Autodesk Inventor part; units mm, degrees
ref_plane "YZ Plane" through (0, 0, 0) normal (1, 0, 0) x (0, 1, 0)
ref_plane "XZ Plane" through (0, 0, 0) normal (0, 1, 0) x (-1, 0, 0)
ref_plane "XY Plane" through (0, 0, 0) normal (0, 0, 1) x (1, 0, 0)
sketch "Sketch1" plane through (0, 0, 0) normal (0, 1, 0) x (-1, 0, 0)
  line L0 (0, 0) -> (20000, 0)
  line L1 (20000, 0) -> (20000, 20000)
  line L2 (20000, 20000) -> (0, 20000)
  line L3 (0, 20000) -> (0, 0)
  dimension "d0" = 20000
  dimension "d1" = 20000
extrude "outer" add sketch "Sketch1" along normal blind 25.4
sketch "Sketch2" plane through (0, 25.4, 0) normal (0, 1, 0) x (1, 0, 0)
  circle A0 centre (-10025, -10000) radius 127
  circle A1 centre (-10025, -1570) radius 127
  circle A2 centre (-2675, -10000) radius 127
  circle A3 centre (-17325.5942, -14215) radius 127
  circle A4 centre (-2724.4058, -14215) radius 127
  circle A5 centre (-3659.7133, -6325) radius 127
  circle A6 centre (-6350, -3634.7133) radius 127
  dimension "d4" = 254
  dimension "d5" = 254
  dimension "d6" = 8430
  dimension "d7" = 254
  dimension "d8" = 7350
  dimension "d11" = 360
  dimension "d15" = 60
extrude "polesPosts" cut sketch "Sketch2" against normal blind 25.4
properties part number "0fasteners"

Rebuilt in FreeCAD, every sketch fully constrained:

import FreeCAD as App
import Part
import Sketcher
from FreeCAD import Vector
Q = App.Units.Quantity


def add_polygon(sketch, points):
    """Adds a closed chain of lines whose ends are joined by coincident constraints."""
    first, n = sketch.GeometryCount, len(points)
    for a, b in zip(points, points[1:] + points[:1]):
        sketch.addGeometry(Part.LineSegment(App.Vector(*a, 0), App.Vector(*b, 0)), False)
    for i in range(n):
        sketch.addConstraint(Sketcher.Constraint("Coincident", first + i, 2, first + (i + 1) % n, 1))

doc = App.newDocument("Part")
body = doc.addObject("PartDesign::Body", "Body")

sketch1 = body.newObject("Sketcher::SketchObject", "Sketch")
sketch1.AttachmentSupport = (doc.getObject("XZ_Plane"), [""])
sketch1.MapMode = "FlatFace"
add_polygon(sketch1, [(0, 20000), (0, 0), (-20000, 0), (-20000, 20000)])
sketch1.addConstraint([
    Sketcher.Constraint("Vertical", 0),
    Sketcher.Constraint("Horizontal", 1),
    Sketcher.Constraint("Vertical", 2),
    Sketcher.Constraint("Horizontal", 3),
    Sketcher.Constraint("Coincident", 0, 2, -1, 1),
    Sketcher.Constraint("Equal", 3, 0),
    Sketcher.Constraint("DistanceX", 1, 2, 1, 1, Q("20000 mm")),
])
pad1 = body.newObject("PartDesign::Pad", "Pad")
pad1.Profile = sketch1
pad1.Length = Q("1 in")
pad1.Reversed = True

sketch2 = body.newObject("Sketcher::SketchObject", "Sketch001")
sketch2.AttachmentSupport = (doc.getObject("XZ_Plane"), [""])
sketch2.MapMode = "FlatFace"
sketch2.AttachmentOffset = App.Placement(Vector(0, 0, -1 * 25.4), App.Rotation())
sketch2.addGeometry([
    Part.Circle(Vector(-10025, 10000, 0), Vector(0, 0, 1), 127),
    Part.Circle(Vector(-10025, 1570, 0), Vector(0, 0, 1), 127),
    Part.Circle(Vector(-2675, 10000, 0), Vector(0, 0, 1), 127),
    Part.Circle(Vector(-17326, 14215, 0), Vector(0, 0, 1), 127),
    Part.Circle(Vector(-2724, 14215, 0), Vector(0, 0, 1), 127),
    Part.Circle(Vector(-3660, 6325, 0), Vector(0, 0, 1), 127),
    Part.Circle(Vector(-6350, 3635, 0), Vector(0, 0, 1), 127),
], False)
sketch2.addConstraint([
    Sketcher.Constraint("Equal", 0, 1),
    Sketcher.Constraint("Equal", 1, 2),
    Sketcher.Constraint("Equal", 2, 3),
    Sketcher.Constraint("Equal", 3, 4),
    Sketcher.Constraint("Equal", 4, 5),
    Sketcher.Constraint("Equal", 5, 6),
    Sketcher.Constraint("Horizontal", 0, 3, 2, 3),
    Sketcher.Constraint("Horizontal", 3, 3, 4, 3),
    Sketcher.Constraint("Vertical", 0, 3, 1, 3),
    Sketcher.Constraint("Diameter", 0, Q("10 in")),
    Sketcher.Constraint("DistanceX", 6, 3, -1, 1, Q("250 in")),
    Sketcher.Constraint("DistanceX", 3, 3, -1, 1, Q("682.11 in")),
    Sketcher.Constraint("DistanceY", 1, 3, 0, 3, Q("8430 mm")),
    Sketcher.Constraint("DistanceX", 0, 3, 2, 3, Q("7350 mm")),
    Sketcher.Constraint("DistanceX", 5, 3, -1, 1, Q("144.0832 in")),
    Sketcher.Constraint("DistanceX", 4, 3, 2, 3, Q("1.9451 in")),
    Sketcher.Constraint("DistanceY", 6, 3, 5, 3, Q("105.9168 in")),
    Sketcher.Constraint("DistanceX", 0, 3, -1, 1, Q("10025 mm")),
    Sketcher.Constraint("DistanceY", -1, 1, 0, 3, Q("10000 mm")),
    Sketcher.Constraint("DistanceY", -1, 1, 3, 3, Q("14215 mm")),
    Sketcher.Constraint("DistanceY", -1, 1, 5, 3, Q("6325 mm")),
])
pocket1 = body.newObject("PartDesign::Pocket", "Pocket")
pocket1.Profile = sketch2
pocket1.Length = Q("1 in")
pocket1.Reversed = True

doc.recompute()
